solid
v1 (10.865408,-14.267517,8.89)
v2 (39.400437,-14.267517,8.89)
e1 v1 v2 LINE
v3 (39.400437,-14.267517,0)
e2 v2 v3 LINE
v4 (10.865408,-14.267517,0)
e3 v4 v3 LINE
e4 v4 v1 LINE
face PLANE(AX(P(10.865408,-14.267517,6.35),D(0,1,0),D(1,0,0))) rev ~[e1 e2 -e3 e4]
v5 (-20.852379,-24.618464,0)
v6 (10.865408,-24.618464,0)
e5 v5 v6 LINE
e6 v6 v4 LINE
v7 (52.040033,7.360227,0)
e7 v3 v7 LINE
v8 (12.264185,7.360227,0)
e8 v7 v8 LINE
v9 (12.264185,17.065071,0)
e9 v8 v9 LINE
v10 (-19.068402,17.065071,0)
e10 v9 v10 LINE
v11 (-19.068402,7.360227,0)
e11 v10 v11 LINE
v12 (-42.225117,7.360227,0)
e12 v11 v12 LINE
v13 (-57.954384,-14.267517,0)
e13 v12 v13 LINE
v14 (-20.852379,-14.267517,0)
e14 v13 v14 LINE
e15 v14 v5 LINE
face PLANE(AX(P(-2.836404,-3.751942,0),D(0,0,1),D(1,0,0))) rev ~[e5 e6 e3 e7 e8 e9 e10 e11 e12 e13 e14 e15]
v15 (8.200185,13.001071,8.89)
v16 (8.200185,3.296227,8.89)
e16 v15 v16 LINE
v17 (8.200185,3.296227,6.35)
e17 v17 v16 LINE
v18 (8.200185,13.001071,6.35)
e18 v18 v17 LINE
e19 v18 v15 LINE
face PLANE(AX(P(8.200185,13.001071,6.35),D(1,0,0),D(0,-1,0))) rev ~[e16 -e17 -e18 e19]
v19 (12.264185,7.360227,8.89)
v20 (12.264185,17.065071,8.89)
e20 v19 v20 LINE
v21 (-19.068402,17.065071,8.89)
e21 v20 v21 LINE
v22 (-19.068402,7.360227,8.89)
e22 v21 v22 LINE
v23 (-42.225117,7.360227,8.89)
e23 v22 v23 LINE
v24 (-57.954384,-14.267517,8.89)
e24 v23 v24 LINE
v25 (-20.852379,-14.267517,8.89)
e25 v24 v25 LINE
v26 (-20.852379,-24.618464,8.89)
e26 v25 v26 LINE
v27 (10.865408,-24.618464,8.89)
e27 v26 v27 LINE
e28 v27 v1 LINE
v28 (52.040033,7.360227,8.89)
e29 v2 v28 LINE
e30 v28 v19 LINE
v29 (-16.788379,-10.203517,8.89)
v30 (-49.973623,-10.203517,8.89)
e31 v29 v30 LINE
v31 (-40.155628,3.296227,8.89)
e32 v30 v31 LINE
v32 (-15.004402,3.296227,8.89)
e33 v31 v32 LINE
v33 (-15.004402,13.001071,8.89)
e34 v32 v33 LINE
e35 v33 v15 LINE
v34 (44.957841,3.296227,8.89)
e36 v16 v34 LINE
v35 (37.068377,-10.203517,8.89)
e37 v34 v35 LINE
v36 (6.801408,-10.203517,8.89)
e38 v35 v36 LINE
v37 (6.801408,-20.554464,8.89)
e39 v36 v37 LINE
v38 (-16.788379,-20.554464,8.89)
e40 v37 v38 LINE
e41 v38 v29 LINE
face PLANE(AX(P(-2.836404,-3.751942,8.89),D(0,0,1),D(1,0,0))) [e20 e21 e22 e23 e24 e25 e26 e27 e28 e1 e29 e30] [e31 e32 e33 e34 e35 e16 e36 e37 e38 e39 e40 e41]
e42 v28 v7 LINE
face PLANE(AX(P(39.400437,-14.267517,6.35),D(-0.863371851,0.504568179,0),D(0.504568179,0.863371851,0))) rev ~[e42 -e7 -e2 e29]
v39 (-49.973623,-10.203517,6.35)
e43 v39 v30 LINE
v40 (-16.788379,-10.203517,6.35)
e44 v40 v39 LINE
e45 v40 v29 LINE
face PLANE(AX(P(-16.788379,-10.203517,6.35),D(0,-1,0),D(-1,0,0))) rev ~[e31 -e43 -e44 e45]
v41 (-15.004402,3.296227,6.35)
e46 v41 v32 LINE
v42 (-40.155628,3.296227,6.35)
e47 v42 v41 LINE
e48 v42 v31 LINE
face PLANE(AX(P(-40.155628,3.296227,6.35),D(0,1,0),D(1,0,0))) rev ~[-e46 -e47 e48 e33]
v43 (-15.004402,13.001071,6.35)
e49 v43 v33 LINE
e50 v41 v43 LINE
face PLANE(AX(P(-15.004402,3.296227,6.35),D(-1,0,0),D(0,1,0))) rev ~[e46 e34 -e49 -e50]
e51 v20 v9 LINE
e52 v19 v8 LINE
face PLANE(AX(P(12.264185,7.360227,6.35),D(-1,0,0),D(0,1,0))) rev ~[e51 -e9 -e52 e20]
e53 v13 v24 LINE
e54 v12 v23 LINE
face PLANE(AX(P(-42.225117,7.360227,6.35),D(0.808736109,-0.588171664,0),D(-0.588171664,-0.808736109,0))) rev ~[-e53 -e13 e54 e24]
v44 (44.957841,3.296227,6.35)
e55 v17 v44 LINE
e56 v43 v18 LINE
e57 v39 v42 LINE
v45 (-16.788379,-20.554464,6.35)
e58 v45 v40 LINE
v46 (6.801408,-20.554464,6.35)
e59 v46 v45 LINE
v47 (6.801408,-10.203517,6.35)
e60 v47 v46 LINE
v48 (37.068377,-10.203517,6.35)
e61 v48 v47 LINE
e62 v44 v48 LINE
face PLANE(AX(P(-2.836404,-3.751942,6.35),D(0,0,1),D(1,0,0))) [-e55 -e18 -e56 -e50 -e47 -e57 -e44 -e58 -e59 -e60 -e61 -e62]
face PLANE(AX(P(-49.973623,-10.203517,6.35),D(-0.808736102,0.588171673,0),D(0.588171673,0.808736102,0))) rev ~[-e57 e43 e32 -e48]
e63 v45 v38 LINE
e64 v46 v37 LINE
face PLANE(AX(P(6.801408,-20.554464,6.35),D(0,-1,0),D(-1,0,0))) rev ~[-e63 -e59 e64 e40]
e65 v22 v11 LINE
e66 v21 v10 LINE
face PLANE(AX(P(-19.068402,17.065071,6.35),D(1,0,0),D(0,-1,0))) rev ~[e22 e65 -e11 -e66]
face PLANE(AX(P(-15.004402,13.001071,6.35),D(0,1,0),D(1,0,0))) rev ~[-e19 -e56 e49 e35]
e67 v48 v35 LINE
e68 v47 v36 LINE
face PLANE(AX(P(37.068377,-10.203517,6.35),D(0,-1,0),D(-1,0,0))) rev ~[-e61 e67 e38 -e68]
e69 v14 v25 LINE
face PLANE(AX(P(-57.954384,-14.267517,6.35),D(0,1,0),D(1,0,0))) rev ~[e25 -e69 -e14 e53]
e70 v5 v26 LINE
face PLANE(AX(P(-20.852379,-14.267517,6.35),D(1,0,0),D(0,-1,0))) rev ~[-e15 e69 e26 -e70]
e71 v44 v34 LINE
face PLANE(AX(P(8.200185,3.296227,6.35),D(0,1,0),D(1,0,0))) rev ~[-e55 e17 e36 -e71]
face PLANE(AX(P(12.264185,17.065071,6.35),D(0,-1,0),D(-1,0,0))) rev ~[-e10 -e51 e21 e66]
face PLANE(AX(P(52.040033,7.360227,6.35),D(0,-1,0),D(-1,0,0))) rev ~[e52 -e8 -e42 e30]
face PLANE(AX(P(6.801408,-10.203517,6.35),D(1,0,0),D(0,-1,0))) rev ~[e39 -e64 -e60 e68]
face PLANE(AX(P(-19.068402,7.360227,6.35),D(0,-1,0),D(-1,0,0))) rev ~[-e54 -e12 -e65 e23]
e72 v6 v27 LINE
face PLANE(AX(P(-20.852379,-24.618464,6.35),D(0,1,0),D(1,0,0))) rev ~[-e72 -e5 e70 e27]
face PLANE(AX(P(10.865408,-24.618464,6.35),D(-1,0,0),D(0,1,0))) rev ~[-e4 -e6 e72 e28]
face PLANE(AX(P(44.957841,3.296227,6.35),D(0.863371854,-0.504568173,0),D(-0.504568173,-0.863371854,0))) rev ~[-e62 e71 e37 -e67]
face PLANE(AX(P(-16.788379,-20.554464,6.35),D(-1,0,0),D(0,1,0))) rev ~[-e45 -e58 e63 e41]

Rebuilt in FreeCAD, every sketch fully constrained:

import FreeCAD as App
import Part
import Sketcher
from FreeCAD import Vector
Q = App.Units.Quantity

doc = App.newDocument("Part")
params = doc.addObject("Spreadsheet::Sheet", "Params")
for row, (alias, value) in enumerate([
    ("pad1_length", "0.25 in"),
    ("pad2_length", "0.1 in"),
], start=1):
    params.set(f"A{row}", alias)
    params.set(f"B{row}", "=" + value)
    params.setAlias(f"B{row}", alias)

body = doc.addObject("PartDesign::Body", "Body")

# Sketch on XY plane
sketch1 = doc.addObject("Sketcher::SketchObject", "Sketch")
body.addObject(sketch1)
sketch1.AttachmentSupport = (doc.XY_Plane, [""])
sketch1.MapMode = "FlatFace"
sketch1.addGeometry(Part.LineSegment(Vector(-19, 7, 0), Vector(-42, 7, 0)), False)
sketch1.addGeometry(Part.LineSegment(Vector(-42, 7, 0), Vector(-58, -14, 0)), False)
sketch1.addGeometry(Part.LineSegment(Vector(-58, -14, 0), Vector(-21, -14, 0)), False)
sketch1.addGeometry(Part.LineSegment(Vector(-21, -14, 0), Vector(-21, -25, 0)), False)
sketch1.addGeometry(Part.LineSegment(Vector(-21, -25, 0), Vector(11, -25, 0)), False)
sketch1.addGeometry(Part.LineSegment(Vector(11, -25, 0), Vector(11, -14, 0)), False)
sketch1.addGeometry(Part.LineSegment(Vector(11, -14, 0), Vector(39, -14, 0)), False)
sketch1.addGeometry(Part.LineSegment(Vector(39, -14, 0), Vector(52, 7, 0)), False)
sketch1.addGeometry(Part.LineSegment(Vector(52, 7, 0), Vector(12, 7, 0)), False)
sketch1.addGeometry(Part.LineSegment(Vector(12, 7, 0), Vector(12, 17, 0)), False)
sketch1.addGeometry(Part.LineSegment(Vector(12, 17, 0), Vector(-19, 17, 0)), False)
sketch1.addGeometry(Part.LineSegment(Vector(-19, 17, 0), Vector(-19, 7, 0)), False)
sketch1.addConstraint(Sketcher.Constraint("Coincident", 0, 2, 1, 1))
sketch1.addConstraint(Sketcher.Constraint("Coincident", 1, 2, 2, 1))
sketch1.addConstraint(Sketcher.Constraint("Coincident", 2, 2, 3, 1))
sketch1.addConstraint(Sketcher.Constraint("Coincident", 3, 2, 4, 1))
sketch1.addConstraint(Sketcher.Constraint("Coincident", 4, 2, 5, 1))
sketch1.addConstraint(Sketcher.Constraint("Coincident", 5, 2, 6, 1))
sketch1.addConstraint(Sketcher.Constraint("Coincident", 6, 2, 7, 1))
sketch1.addConstraint(Sketcher.Constraint("Coincident", 7, 2, 8, 1))
sketch1.addConstraint(Sketcher.Constraint("Coincident", 8, 2, 9, 1))
sketch1.addConstraint(Sketcher.Constraint("Coincident", 9, 2, 10, 1))
sketch1.addConstraint(Sketcher.Constraint("Coincident", 10, 2, 11, 1))
sketch1.addConstraint(Sketcher.Constraint("Coincident", 11, 2, 0, 1))
sketch1.addConstraint(Sketcher.Constraint("Horizontal", 0))
sketch1.addConstraint(Sketcher.Constraint("Horizontal", 2))
sketch1.addConstraint(Sketcher.Constraint("Vertical", 3))
sketch1.addConstraint(Sketcher.Constraint("Horizontal", 4))
sketch1.addConstraint(Sketcher.Constraint("Vertical", 5))
sketch1.addConstraint(Sketcher.Constraint("Horizontal", 6))
sketch1.addConstraint(Sketcher.Constraint("Horizontal", 8))
sketch1.addConstraint(Sketcher.Constraint("Vertical", 9))
sketch1.addConstraint(Sketcher.Constraint("Horizontal", 10))
sketch1.addConstraint(Sketcher.Constraint("Vertical", 11))
sketch1.addConstraint(Sketcher.Constraint("Horizontal", 2, 2, 5, 2))
sketch1.addConstraint(Sketcher.Constraint("Horizontal", 0, 2, 7, 2))
sketch1.addConstraint(Sketcher.Constraint("DistanceX", 6, 1, 6, 2, Q("28.535029 mm")))
sketch1.addConstraint(Sketcher.Constraint("DistanceX", 8, 2, 8, 1, Q("39.775848 mm")))
sketch1.addConstraint(Sketcher.Constraint("DistanceX", 10, 2, -1, 1, Q("19.068402 mm")))
sketch1.addConstraint(Sketcher.Constraint("DistanceX", 0, 2, 0, 1, Q("23.156715 mm")))
sketch1.addConstraint(Sketcher.Constraint("DistanceX", 2, 1, 2, 2, Q("37.102005 mm")))
sketch1.addConstraint(Sketcher.Constraint("DistanceX", 4, 1, 4, 2, Q("31.717787 mm")))
sketch1.addConstraint(Sketcher.Constraint("DistanceX", 10, 2, 10, 1, Q("31.332587 mm")))
sketch1.addConstraint(Sketcher.Constraint("DistanceY", 3, 2, 3, 1, Q("10.350947 mm")))
sketch1.addConstraint(Sketcher.Constraint("DistanceY", 9, 1, 9, 2, Q("9.704844 mm")))
sketch1.addConstraint(Sketcher.Constraint("DistanceX", 2, 2, -1, 1, Q("20.852379 mm")))
sketch1.addConstraint(Sketcher.Constraint("DistanceY", -1, 1, 9, 2, Q("17.065071 mm")))
sketch1.addConstraint(Sketcher.Constraint("DistanceY", 3, 2, 0, 2, Q("31.978691 mm")))
pad1 = doc.addObject("PartDesign::Pad", "Pad")
body.addObject(pad1)
pad1.Profile = sketch1
pad1.setExpression("Length", "Params.pad1_length")

# Sketch on XY plane
sketch2 = doc.addObject("Sketcher::SketchObject", "Sketch001")
body.addObject(sketch2)
sketch2.AttachmentSupport = (doc.XY_Plane, [""])
sketch2.MapMode = "FlatFace"
sketch2.AttachmentOffset = App.Placement(Vector(0, 0, 0.25 * 25.4), App.Rotation())
sketch2.addGeometry(Part.LineSegment(Vector(-19, 7, 0), Vector(-42, 7, 0)), False)
sketch2.addGeometry(Part.LineSegment(Vector(-42, 7, 0), Vector(-58, -14, 0)), False)
sketch2.addGeometry(Part.LineSegment(Vector(-58, -14, 0), Vector(-21, -14, 0)), False)
sketch2.addGeometry(Part.LineSegment(Vector(-21, -14, 0), Vector(-21, -25, 0)), False)
sketch2.addGeometry(Part.LineSegment(Vector(-21, -25, 0), Vector(11, -25, 0)), False)
sketch2.addGeometry(Part.LineSegment(Vector(11, -25, 0), Vector(11, -14, 0)), False)
sketch2.addGeometry(Part.LineSegment(Vector(11, -14, 0), Vector(39, -14, 0)), False)
sketch2.addGeometry(Part.LineSegment(Vector(39, -14, 0), Vector(52, 7, 0)), False)
sketch2.addGeometry(Part.LineSegment(Vector(52, 7, 0), Vector(12, 7, 0)), False)
sketch2.addGeometry(Part.LineSegment(Vector(12, 7, 0), Vector(12, 17, 0)), False)
sketch2.addGeometry(Part.LineSegment(Vector(12, 17, 0), Vector(-19, 17, 0)), False)
sketch2.addGeometry(Part.LineSegment(Vector(-19, 17, 0), Vector(-19, 7, 0)), False)
sketch2.addGeometry(Part.LineSegment(Vector(-40, 3, 0), Vector(-15, 3, 0)), False)
sketch2.addGeometry(Part.LineSegment(Vector(-15, 3, 0), Vector(-15, 13, 0)), False)
sketch2.addGeometry(Part.LineSegment(Vector(-15, 13, 0), Vector(8, 13, 0)), False)
sketch2.addGeometry(Part.LineSegment(Vector(8, 13, 0), Vector(8, 3, 0)), False)
sketch2.addGeometry(Part.LineSegment(Vector(8, 3, 0), Vector(45, 3, 0)), False)
sketch2.addGeometry(Part.LineSegment(Vector(45, 3, 0), Vector(37, -10, 0)), False)
sketch2.addGeometry(Part.LineSegment(Vector(37, -10, 0), Vector(7, -10, 0)), False)
sketch2.addGeometry(Part.LineSegment(Vector(7, -10, 0), Vector(7, -21, 0)), False)
sketch2.addGeometry(Part.LineSegment(Vector(7, -21, 0), Vector(-17, -21, 0)), False)
sketch2.addGeometry(Part.LineSegment(Vector(-17, -21, 0), Vector(-17, -10, 0)), False)
sketch2.addGeometry(Part.LineSegment(Vector(-17, -10, 0), Vector(-50, -10, 0)), False)
sketch2.addGeometry(Part.LineSegment(Vector(-50, -10, 0), Vector(-40, 3, 0)), False)
sketch2.addConstraint(Sketcher.Constraint("Coincident", 0, 2, 1, 1))
sketch2.addConstraint(Sketcher.Constraint("Coincident", 1, 2, 2, 1))
sketch2.addConstraint(Sketcher.Constraint("Coincident", 2, 2, 3, 1))
sketch2.addConstraint(Sketcher.Constraint("Coincident", 3, 2, 4, 1))
sketch2.addConstraint(Sketcher.Constraint("Coincident", 4, 2, 5, 1))
sketch2.addConstraint(Sketcher.Constraint("Coincident", 5, 2, 6, 1))
sketch2.addConstraint(Sketcher.Constraint("Coincident", 6, 2, 7, 1))
sketch2.addConstraint(Sketcher.Constraint("Coincident", 7, 2, 8, 1))
sketch2.addConstraint(Sketcher.Constraint("Coincident", 8, 2, 9, 1))
sketch2.addConstraint(Sketcher.Constraint("Coincident", 9, 2, 10, 1))
sketch2.addConstraint(Sketcher.Constraint("Coincident", 10, 2, 11, 1))
sketch2.addConstraint(Sketcher.Constraint("Coincident", 11, 2, 0, 1))
sketch2.addConstraint(Sketcher.Constraint("Coincident", 12, 2, 13, 1))
sketch2.addConstraint(Sketcher.Constraint("Coincident", 13, 2, 14, 1))
sketch2.addConstraint(Sketcher.Constraint("Coincident", 14, 2, 15, 1))
sketch2.addConstraint(Sketcher.Constraint("Coincident", 15, 2, 16, 1))
sketch2.addConstraint(Sketcher.Constraint("Coincident", 16, 2, 17, 1))
sketch2.addConstraint(Sketcher.Constraint("Coincident", 17, 2, 18, 1))
sketch2.addConstraint(Sketcher.Constraint("Coincident", 18, 2, 19, 1))
sketch2.addConstraint(Sketcher.Constraint("Coincident", 19, 2, 20, 1))
sketch2.addConstraint(Sketcher.Constraint("Coincident", 20, 2, 21, 1))
sketch2.addConstraint(Sketcher.Constraint("Coincident", 21, 2, 22, 1))
sketch2.addConstraint(Sketcher.Constraint("Coincident", 22, 2, 23, 1))
sketch2.addConstraint(Sketcher.Constraint("Coincident", 23, 2, 12, 1))
sketch2.addConstraint(Sketcher.Constraint("Horizontal", 0))
sketch2.addConstraint(Sketcher.Constraint("Horizontal", 2))
sketch2.addConstraint(Sketcher.Constraint("Vertical", 3))
sketch2.addConstraint(Sketcher.Constraint("Horizontal", 4))
sketch2.addConstraint(Sketcher.Constraint("Vertical", 5))
sketch2.addConstraint(Sketcher.Constraint("Horizontal", 6))
sketch2.addConstraint(Sketcher.Constraint("Horizontal", 8))
sketch2.addConstraint(Sketcher.Constraint("Vertical", 9))
sketch2.addConstraint(Sketcher.Constraint("Horizontal", 10))
sketch2.addConstraint(Sketcher.Constraint("Vertical", 11))
sketch2.addConstraint(Sketcher.Constraint("Horizontal", 12))
sketch2.addConstraint(Sketcher.Constraint("Vertical", 13))
sketch2.addConstraint(Sketcher.Constraint("Horizontal", 14))
sketch2.addConstraint(Sketcher.Constraint("Vertical", 15))
sketch2.addConstraint(Sketcher.Constraint("Horizontal", 16))
sketch2.addConstraint(Sketcher.Constraint("Horizontal", 18))
sketch2.addConstraint(Sketcher.Constraint("Vertical", 19))
sketch2.addConstraint(Sketcher.Constraint("Horizontal", 20))
sketch2.addConstraint(Sketcher.Constraint("Vertical", 21))
sketch2.addConstraint(Sketcher.Constraint("Horizontal", 22))
sketch2.addConstraint(Sketcher.Constraint("Parallel", 7, 17))
sketch2.addConstraint(Sketcher.Constraint("Parallel", 1, 23))
sketch2.addConstraint(Sketcher.Constraint("Horizontal", 2, 2, 5, 2))
sketch2.addConstraint(Sketcher.Constraint("Horizontal", 0, 2, 7, 2))
sketch2.addConstraint(Sketcher.Constraint("Horizontal", 12, 2, 15, 2))
sketch2.addConstraint(Sketcher.Constraint("Horizontal", 18, 2, 21, 2))
sketch2.addConstraint(Sketcher.Constraint("Equal", 11, 13))
sketch2.addConstraint(Sketcher.Constraint("Equal", 5, 19))
sketch2.addConstraint(Sketcher.Constraint("DistanceX", 11, 2, 12, 2, Q("0.16 in")))
sketch2.addConstraint(Sketcher.Constraint("DistanceY", 12, 2, 11, 2, Q("0.16 in")))
sketch2.addConstraint(Sketcher.Constraint("DistanceX", 14, 2, 9, 2, Q("0.16 in")))
sketch2.addConstraint(Sketcher.Constraint("DistanceY", 6, 2, 17, 2, Q("0.16 in")))
sketch2.addConstraint(Sketcher.Constraint("DistanceX", 18, 2, 5, 2, Q("0.16 in")))
sketch2.addConstraint(Sketcher.Constraint("DistanceX", 3, 2, 20, 2, Q("0.16 in")))
sketch2.addConstraint(Sketcher.Constraint("DistanceX", 6, 1, 6, 2, Q("28.535029 mm")))
sketch2.addConstraint(Sketcher.Constraint("DistanceX", 8, 2, 8, 1, Q("39.775848 mm")))
sketch2.addConstraint(Sketcher.Constraint("DistanceX", 18, 2, 18, 1, Q("30.266969 mm")))
sketch2.addConstraint(Sketcher.Constraint("DistanceX", 10, 2, -1, 1, Q("19.068402 mm")))
sketch2.addConstraint(Sketcher.Constraint("Distance", 17, Q("15.636071 mm")))
sketch2.addConstraint(Sketcher.Constraint("DistanceX", 0, 2, 0, 1, Q("23.156715 mm")))
sketch2.addConstraint(Sketcher.Constraint("DistanceX", 2, 1, 2, 2, Q("37.102005 mm")))
sketch2.addConstraint(Sketcher.Constraint("DistanceX", 4, 1, 4, 2, Q("31.717787 mm")))
sketch2.addConstraint(Sketcher.Constraint("DistanceX", 10, 2, 10, 1, Q("31.332587 mm")))
sketch2.addConstraint(Sketcher.Constraint("DistanceX", 12, 1, 12, 2, Q("25.151226 mm")))
sketch2.addConstraint(Sketcher.Constraint("DistanceX", 16, 1, 16, 2, Q("36.757656 mm")))
sketch2.addConstraint(Sketcher.Constraint("DistanceY", 3, 2, 3, 1, Q("10.350947 mm")))
sketch2.addConstraint(Sketcher.Constraint("DistanceY", 9, 1, 9, 2, Q("9.704844 mm")))
sketch2.addConstraint(Sketcher.Constraint("DistanceY", -1, 1, 9, 2, Q("17.065071 mm")))
pad2 = doc.addObject("PartDesign::Pad", "Pad001")
body.addObject(pad2)
pad2.Profile = sketch2
pad2.setExpression("Length", "Params.pad2_length")

doc.recompute()
